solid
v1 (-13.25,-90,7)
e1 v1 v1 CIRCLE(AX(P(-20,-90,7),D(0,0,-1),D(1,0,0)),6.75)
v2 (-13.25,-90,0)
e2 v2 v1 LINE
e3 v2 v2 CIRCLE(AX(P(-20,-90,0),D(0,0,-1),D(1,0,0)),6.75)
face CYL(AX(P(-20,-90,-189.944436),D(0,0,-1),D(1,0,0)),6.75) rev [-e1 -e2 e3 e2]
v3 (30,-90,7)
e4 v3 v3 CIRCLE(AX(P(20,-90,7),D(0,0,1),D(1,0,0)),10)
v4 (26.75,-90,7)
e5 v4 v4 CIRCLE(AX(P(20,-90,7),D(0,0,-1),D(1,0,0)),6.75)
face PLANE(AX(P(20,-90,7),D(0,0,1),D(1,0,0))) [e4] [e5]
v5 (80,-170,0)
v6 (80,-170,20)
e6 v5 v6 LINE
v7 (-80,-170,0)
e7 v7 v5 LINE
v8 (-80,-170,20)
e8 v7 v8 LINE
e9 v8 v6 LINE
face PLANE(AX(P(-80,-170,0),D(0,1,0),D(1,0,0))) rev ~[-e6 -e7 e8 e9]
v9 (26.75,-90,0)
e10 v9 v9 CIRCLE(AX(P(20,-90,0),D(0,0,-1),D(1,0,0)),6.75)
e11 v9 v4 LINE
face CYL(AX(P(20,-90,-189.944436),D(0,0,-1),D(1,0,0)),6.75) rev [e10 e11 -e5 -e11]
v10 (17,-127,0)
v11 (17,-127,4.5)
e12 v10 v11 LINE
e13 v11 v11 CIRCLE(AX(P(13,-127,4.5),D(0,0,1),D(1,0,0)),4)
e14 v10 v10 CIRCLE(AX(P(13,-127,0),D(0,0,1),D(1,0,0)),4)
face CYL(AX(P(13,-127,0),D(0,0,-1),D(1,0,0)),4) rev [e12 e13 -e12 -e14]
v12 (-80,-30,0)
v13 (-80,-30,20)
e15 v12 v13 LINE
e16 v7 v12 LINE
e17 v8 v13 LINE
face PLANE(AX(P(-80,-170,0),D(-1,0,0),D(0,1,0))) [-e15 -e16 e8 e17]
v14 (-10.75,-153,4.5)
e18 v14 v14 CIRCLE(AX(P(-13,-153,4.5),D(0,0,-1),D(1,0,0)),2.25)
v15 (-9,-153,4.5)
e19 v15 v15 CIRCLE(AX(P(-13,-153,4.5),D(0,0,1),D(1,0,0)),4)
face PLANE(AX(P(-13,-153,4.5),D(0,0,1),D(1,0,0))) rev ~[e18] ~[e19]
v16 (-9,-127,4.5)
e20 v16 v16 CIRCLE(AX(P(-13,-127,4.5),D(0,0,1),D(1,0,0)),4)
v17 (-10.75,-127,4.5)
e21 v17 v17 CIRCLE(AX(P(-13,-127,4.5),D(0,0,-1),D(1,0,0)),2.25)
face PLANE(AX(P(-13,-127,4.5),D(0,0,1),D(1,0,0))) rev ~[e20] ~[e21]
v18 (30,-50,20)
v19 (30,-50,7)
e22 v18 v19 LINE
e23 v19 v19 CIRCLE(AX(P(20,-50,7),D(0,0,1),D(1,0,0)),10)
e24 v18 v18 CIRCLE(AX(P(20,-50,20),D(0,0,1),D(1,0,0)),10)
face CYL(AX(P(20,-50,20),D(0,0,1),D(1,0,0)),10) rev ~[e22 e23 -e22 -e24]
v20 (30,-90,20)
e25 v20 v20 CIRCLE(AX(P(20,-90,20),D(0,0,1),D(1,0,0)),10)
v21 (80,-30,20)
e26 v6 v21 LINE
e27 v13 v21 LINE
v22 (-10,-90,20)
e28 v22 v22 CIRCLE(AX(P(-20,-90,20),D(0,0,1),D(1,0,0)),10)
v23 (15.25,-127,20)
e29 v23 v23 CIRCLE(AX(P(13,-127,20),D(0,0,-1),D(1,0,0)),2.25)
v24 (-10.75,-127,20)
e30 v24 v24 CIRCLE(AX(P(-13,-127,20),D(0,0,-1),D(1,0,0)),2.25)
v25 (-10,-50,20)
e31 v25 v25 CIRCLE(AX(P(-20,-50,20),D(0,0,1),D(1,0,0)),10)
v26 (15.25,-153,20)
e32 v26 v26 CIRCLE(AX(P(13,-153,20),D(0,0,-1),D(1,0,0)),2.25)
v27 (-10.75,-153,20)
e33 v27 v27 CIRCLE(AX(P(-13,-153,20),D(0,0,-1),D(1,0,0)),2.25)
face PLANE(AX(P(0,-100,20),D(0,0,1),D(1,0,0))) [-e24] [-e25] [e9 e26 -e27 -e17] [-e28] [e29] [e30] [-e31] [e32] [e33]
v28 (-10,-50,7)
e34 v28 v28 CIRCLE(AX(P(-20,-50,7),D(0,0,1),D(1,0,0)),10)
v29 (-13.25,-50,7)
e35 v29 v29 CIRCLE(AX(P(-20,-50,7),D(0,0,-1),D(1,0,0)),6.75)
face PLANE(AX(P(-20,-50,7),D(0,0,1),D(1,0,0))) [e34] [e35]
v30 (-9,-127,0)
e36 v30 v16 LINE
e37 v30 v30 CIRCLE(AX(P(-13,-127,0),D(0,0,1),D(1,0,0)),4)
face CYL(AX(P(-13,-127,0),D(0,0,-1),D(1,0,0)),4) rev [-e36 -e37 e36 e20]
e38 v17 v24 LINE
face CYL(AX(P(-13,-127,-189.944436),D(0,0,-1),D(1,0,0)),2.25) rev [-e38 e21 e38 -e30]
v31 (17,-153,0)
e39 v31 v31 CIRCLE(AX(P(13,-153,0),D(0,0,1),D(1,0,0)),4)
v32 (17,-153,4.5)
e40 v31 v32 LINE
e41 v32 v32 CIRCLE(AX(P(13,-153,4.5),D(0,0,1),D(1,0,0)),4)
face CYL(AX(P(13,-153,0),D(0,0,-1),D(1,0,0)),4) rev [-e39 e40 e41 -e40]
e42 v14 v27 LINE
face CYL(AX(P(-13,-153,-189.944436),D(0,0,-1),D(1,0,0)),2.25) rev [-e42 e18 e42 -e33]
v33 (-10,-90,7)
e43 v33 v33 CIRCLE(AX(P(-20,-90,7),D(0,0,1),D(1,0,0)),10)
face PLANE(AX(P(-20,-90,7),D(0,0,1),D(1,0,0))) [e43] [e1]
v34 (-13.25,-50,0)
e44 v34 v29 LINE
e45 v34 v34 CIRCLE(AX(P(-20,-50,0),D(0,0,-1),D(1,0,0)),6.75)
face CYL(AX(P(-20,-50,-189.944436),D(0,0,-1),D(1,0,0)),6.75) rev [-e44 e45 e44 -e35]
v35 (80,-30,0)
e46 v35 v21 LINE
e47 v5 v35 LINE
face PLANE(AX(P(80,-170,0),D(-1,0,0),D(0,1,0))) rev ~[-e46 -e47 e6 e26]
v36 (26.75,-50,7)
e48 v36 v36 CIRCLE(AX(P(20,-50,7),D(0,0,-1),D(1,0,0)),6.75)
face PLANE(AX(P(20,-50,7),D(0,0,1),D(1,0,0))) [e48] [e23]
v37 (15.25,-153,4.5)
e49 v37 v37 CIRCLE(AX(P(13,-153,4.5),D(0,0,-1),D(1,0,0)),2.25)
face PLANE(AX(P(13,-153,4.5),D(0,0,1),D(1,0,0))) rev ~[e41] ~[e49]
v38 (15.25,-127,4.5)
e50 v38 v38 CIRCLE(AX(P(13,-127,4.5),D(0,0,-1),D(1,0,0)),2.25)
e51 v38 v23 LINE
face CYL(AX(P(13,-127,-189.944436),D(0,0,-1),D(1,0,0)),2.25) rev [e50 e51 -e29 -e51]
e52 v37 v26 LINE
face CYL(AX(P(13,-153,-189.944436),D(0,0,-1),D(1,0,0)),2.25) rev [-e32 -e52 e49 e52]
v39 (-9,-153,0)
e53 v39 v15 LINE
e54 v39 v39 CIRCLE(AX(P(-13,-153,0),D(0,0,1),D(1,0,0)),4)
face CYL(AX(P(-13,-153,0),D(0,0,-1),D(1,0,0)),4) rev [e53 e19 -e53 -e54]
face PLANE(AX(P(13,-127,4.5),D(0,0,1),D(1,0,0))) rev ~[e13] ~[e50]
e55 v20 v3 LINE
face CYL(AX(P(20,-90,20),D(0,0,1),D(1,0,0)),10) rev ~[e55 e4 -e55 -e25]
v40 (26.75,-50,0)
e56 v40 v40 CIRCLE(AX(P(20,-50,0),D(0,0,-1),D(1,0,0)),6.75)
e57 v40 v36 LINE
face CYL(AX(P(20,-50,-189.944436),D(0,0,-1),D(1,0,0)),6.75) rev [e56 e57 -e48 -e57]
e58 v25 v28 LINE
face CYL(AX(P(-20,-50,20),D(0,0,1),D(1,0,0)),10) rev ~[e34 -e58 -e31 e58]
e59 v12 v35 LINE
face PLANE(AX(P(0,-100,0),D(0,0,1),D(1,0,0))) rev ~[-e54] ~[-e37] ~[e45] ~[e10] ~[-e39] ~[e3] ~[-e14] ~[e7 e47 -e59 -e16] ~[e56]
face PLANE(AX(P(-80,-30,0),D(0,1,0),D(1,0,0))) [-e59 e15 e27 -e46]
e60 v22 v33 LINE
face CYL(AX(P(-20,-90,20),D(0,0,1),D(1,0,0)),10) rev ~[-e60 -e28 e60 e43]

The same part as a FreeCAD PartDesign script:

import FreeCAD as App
import Part
import Sketcher
Q = App.Units.Quantity

doc = App.newDocument("Part")
body = doc.addObject("PartDesign::Body", "Body")

# Sketch on XY plane
sketch1 = body.newObject("Sketcher::SketchObject", "Sketch")
sketch1.AttachmentSupport = (doc.getObject("XY_Plane"), [""])
sketch1.MapMode = "FlatFace"
sketch1.addGeometry([
    Part.LineSegment(App.Vector(-80, -30, 0), App.Vector(-80, -170, 0)),
    Part.LineSegment(App.Vector(-80, -170, 0), App.Vector(80, -170, 0)),
    Part.LineSegment(App.Vector(80, -170, 0), App.Vector(80, -30, 0)),
    Part.LineSegment(App.Vector(80, -30, 0), App.Vector(-80, -30, 0)),
], False)
sketch1.addConstraint([
    Sketcher.Constraint("Coincident", 0, 2, 1, 1),
    Sketcher.Constraint("Coincident", 1, 2, 2, 1),
    Sketcher.Constraint("Coincident", 2, 2, 3, 1),
    Sketcher.Constraint("Coincident", 3, 2, 0, 1),
    Sketcher.Constraint("Vertical", 0),
    Sketcher.Constraint("Horizontal", 1),
    Sketcher.Constraint("Vertical", 2),
    Sketcher.Constraint("Horizontal", 3),
    Sketcher.Constraint("DistanceX", 1, 1, 1, 2, Q("160 mm")),
    Sketcher.Constraint("DistanceY", 0, 2, 0, 1, Q("140 mm")),
    Sketcher.Constraint("DistanceX", 0, 2, -1, 1, Q("80 mm")),
    Sketcher.Constraint("DistanceY", 0, 2, -1, 1, Q("170 mm")),
])
pad1 = body.newObject("PartDesign::Pad", "Pad")
pad1.Profile = sketch1
pad1.Length = 20

# Sketch on XY plane
sketch2 = body.newObject("Sketcher::SketchObject", "Sketch001")
sketch2.AttachmentSupport = (doc.getObject("XY_Plane"), [""])
sketch2.MapMode = "FlatFace"
sketch2.addGeometry([
    Part.Circle(App.Vector(-20, -50, 0), App.Vector(0, 0, 1), 7),
    Part.Circle(App.Vector(-20, -90, 0), App.Vector(0, 0, 1), 7),
    Part.Circle(App.Vector(20, -50, 0), App.Vector(0, 0, 1), 7),
    Part.Circle(App.Vector(20, -90, 0), App.Vector(0, 0, 1), 7),
], False)
sketch2.addConstraint([
    Sketcher.Constraint("Equal", 0, 1),
    Sketcher.Constraint("Equal", 1, 2),
    Sketcher.Constraint("Equal", 2, 3),
    Sketcher.Constraint("Symmetric", 0, 3, 2, 3, -2),
    Sketcher.Constraint("Symmetric", 1, 3, 3, 3, -2),
    Sketcher.Constraint("Vertical", 0, 3, 1, 3),
    Sketcher.Constraint("Diameter", 0, Q("13.5 mm")),
    Sketcher.Constraint("DistanceX", 0, 3, -1, 1, Q("20 mm")),
    Sketcher.Constraint("DistanceY", 0, 3, -1, 1, Q("50 mm")),
    Sketcher.Constraint("DistanceY", 1, 3, -1, 1, Q("90 mm")),
])
pocket1 = body.newObject("PartDesign::Pocket", "Pocket")
pocket1.Profile = sketch2
pocket1.Type = "ThroughAll"
pocket1.Midplane = True

# Sketch on XY plane
sketch3 = body.newObject("Sketcher::SketchObject", "Sketch002")
sketch3.AttachmentSupport = (doc.getObject("XY_Plane"), [""])
sketch3.MapMode = "FlatFace"
sketch3.AttachmentOffset = App.Placement(App.Vector(0, 0, 20), App.Rotation())
sketch3.addGeometry([
    Part.Circle(App.Vector(-20, -50, 0), App.Vector(0, 0, 1), 10),
    Part.Circle(App.Vector(-20, -90, 0), App.Vector(0, 0, 1), 10),
    Part.Circle(App.Vector(20, -50, 0), App.Vector(0, 0, 1), 10),
    Part.Circle(App.Vector(20, -90, 0), App.Vector(0, 0, 1), 10),
], False)
sketch3.addConstraint([
    Sketcher.Constraint("Equal", 0, 1),
    Sketcher.Constraint("Equal", 1, 2),
    Sketcher.Constraint("Equal", 2, 3),
    Sketcher.Constraint("Symmetric", 0, 3, 2, 3, -2),
    Sketcher.Constraint("Symmetric", 1, 3, 3, 3, -2),
    Sketcher.Constraint("Vertical", 0, 3, 1, 3),
    Sketcher.Constraint("Diameter", 0, Q("20 mm")),
    Sketcher.Constraint("DistanceX", 0, 3, -1, 1, Q("20 mm")),
    Sketcher.Constraint("DistanceY", 0, 3, -1, 1, Q("50 mm")),
    Sketcher.Constraint("DistanceY", 1, 3, -1, 1, Q("90 mm")),
])
pocket2 = body.newObject("PartDesign::Pocket", "Pocket001")
pocket2.Profile = sketch3
pocket2.Length = 13

# Sketch on XY plane
sketch4 = body.newObject("Sketcher::SketchObject", "Sketch003")
sketch4.AttachmentSupport = (doc.getObject("XY_Plane"), [""])
sketch4.MapMode = "FlatFace"
sketch4.addGeometry([
    Part.Circle(App.Vector(-13, -127, 0), App.Vector(0, 0, 1), 2.2),
    Part.Circle(App.Vector(-13, -153, 0), App.Vector(0, 0, 1), 2.2),
    Part.Circle(App.Vector(13, -127, 0), App.Vector(0, 0, 1), 2.2),
    Part.Circle(App.Vector(13, -153, 0), App.Vector(0, 0, 1), 2.2),
], False)
sketch4.addConstraint([
    Sketcher.Constraint("Equal", 0, 1),
    Sketcher.Constraint("Equal", 1, 2),
    Sketcher.Constraint("Equal", 2, 3),
    Sketcher.Constraint("Symmetric", 0, 3, 2, 3, -2),
    Sketcher.Constraint("Symmetric", 1, 3, 3, 3, -2),
    Sketcher.Constraint("Vertical", 0, 3, 1, 3),
    Sketcher.Constraint("Diameter", 0, Q("4.5 mm")),
    Sketcher.Constraint("DistanceX", 0, 3, -1, 1, Q("13 mm")),
    Sketcher.Constraint("DistanceY", 0, 3, -1, 1, Q("127 mm")),
    Sketcher.Constraint("DistanceY", 1, 3, -1, 1, Q("153 mm")),
])
pocket3 = body.newObject("PartDesign::Pocket", "Pocket002")
pocket3.Profile = sketch4
pocket3.Type = "ThroughAll"
pocket3.Midplane = True

# Sketch on XY plane
sketch5 = body.newObject("Sketcher::SketchObject", "Sketch004")
sketch5.AttachmentSupport = (doc.getObject("XY_Plane"), [""])
sketch5.MapMode = "FlatFace"
sketch5.addGeometry([
    Part.Circle(App.Vector(-13, -127, 0), App.Vector(0, 0, 1), 4),
    Part.Circle(App.Vector(-13, -153, 0), App.Vector(0, 0, 1), 4),
    Part.Circle(App.Vector(13, -127, 0), App.Vector(0, 0, 1), 4),
    Part.Circle(App.Vector(13, -153, 0), App.Vector(0, 0, 1), 4),
], False)
sketch5.addConstraint([
    Sketcher.Constraint("Equal", 0, 1),
    Sketcher.Constraint("Equal", 1, 2),
    Sketcher.Constraint("Equal", 2, 3),
    Sketcher.Constraint("Symmetric", 0, 3, 2, 3, -2),
    Sketcher.Constraint("Symmetric", 1, 3, 3, 3, -2),
    Sketcher.Constraint("Vertical", 0, 3, 1, 3),
    Sketcher.Constraint("Diameter", 0, Q("8 mm")),
    Sketcher.Constraint("DistanceX", 0, 3, -1, 1, Q("13 mm")),
    Sketcher.Constraint("DistanceY", 0, 3, -1, 1, Q("127 mm")),
    Sketcher.Constraint("DistanceY", 1, 3, -1, 1, Q("153 mm")),
])
pocket4 = body.newObject("PartDesign::Pocket", "Pocket003")
pocket4.Profile = sketch5
pocket4.Length = 4.5
pocket4.Reversed = True

doc.recompute()
